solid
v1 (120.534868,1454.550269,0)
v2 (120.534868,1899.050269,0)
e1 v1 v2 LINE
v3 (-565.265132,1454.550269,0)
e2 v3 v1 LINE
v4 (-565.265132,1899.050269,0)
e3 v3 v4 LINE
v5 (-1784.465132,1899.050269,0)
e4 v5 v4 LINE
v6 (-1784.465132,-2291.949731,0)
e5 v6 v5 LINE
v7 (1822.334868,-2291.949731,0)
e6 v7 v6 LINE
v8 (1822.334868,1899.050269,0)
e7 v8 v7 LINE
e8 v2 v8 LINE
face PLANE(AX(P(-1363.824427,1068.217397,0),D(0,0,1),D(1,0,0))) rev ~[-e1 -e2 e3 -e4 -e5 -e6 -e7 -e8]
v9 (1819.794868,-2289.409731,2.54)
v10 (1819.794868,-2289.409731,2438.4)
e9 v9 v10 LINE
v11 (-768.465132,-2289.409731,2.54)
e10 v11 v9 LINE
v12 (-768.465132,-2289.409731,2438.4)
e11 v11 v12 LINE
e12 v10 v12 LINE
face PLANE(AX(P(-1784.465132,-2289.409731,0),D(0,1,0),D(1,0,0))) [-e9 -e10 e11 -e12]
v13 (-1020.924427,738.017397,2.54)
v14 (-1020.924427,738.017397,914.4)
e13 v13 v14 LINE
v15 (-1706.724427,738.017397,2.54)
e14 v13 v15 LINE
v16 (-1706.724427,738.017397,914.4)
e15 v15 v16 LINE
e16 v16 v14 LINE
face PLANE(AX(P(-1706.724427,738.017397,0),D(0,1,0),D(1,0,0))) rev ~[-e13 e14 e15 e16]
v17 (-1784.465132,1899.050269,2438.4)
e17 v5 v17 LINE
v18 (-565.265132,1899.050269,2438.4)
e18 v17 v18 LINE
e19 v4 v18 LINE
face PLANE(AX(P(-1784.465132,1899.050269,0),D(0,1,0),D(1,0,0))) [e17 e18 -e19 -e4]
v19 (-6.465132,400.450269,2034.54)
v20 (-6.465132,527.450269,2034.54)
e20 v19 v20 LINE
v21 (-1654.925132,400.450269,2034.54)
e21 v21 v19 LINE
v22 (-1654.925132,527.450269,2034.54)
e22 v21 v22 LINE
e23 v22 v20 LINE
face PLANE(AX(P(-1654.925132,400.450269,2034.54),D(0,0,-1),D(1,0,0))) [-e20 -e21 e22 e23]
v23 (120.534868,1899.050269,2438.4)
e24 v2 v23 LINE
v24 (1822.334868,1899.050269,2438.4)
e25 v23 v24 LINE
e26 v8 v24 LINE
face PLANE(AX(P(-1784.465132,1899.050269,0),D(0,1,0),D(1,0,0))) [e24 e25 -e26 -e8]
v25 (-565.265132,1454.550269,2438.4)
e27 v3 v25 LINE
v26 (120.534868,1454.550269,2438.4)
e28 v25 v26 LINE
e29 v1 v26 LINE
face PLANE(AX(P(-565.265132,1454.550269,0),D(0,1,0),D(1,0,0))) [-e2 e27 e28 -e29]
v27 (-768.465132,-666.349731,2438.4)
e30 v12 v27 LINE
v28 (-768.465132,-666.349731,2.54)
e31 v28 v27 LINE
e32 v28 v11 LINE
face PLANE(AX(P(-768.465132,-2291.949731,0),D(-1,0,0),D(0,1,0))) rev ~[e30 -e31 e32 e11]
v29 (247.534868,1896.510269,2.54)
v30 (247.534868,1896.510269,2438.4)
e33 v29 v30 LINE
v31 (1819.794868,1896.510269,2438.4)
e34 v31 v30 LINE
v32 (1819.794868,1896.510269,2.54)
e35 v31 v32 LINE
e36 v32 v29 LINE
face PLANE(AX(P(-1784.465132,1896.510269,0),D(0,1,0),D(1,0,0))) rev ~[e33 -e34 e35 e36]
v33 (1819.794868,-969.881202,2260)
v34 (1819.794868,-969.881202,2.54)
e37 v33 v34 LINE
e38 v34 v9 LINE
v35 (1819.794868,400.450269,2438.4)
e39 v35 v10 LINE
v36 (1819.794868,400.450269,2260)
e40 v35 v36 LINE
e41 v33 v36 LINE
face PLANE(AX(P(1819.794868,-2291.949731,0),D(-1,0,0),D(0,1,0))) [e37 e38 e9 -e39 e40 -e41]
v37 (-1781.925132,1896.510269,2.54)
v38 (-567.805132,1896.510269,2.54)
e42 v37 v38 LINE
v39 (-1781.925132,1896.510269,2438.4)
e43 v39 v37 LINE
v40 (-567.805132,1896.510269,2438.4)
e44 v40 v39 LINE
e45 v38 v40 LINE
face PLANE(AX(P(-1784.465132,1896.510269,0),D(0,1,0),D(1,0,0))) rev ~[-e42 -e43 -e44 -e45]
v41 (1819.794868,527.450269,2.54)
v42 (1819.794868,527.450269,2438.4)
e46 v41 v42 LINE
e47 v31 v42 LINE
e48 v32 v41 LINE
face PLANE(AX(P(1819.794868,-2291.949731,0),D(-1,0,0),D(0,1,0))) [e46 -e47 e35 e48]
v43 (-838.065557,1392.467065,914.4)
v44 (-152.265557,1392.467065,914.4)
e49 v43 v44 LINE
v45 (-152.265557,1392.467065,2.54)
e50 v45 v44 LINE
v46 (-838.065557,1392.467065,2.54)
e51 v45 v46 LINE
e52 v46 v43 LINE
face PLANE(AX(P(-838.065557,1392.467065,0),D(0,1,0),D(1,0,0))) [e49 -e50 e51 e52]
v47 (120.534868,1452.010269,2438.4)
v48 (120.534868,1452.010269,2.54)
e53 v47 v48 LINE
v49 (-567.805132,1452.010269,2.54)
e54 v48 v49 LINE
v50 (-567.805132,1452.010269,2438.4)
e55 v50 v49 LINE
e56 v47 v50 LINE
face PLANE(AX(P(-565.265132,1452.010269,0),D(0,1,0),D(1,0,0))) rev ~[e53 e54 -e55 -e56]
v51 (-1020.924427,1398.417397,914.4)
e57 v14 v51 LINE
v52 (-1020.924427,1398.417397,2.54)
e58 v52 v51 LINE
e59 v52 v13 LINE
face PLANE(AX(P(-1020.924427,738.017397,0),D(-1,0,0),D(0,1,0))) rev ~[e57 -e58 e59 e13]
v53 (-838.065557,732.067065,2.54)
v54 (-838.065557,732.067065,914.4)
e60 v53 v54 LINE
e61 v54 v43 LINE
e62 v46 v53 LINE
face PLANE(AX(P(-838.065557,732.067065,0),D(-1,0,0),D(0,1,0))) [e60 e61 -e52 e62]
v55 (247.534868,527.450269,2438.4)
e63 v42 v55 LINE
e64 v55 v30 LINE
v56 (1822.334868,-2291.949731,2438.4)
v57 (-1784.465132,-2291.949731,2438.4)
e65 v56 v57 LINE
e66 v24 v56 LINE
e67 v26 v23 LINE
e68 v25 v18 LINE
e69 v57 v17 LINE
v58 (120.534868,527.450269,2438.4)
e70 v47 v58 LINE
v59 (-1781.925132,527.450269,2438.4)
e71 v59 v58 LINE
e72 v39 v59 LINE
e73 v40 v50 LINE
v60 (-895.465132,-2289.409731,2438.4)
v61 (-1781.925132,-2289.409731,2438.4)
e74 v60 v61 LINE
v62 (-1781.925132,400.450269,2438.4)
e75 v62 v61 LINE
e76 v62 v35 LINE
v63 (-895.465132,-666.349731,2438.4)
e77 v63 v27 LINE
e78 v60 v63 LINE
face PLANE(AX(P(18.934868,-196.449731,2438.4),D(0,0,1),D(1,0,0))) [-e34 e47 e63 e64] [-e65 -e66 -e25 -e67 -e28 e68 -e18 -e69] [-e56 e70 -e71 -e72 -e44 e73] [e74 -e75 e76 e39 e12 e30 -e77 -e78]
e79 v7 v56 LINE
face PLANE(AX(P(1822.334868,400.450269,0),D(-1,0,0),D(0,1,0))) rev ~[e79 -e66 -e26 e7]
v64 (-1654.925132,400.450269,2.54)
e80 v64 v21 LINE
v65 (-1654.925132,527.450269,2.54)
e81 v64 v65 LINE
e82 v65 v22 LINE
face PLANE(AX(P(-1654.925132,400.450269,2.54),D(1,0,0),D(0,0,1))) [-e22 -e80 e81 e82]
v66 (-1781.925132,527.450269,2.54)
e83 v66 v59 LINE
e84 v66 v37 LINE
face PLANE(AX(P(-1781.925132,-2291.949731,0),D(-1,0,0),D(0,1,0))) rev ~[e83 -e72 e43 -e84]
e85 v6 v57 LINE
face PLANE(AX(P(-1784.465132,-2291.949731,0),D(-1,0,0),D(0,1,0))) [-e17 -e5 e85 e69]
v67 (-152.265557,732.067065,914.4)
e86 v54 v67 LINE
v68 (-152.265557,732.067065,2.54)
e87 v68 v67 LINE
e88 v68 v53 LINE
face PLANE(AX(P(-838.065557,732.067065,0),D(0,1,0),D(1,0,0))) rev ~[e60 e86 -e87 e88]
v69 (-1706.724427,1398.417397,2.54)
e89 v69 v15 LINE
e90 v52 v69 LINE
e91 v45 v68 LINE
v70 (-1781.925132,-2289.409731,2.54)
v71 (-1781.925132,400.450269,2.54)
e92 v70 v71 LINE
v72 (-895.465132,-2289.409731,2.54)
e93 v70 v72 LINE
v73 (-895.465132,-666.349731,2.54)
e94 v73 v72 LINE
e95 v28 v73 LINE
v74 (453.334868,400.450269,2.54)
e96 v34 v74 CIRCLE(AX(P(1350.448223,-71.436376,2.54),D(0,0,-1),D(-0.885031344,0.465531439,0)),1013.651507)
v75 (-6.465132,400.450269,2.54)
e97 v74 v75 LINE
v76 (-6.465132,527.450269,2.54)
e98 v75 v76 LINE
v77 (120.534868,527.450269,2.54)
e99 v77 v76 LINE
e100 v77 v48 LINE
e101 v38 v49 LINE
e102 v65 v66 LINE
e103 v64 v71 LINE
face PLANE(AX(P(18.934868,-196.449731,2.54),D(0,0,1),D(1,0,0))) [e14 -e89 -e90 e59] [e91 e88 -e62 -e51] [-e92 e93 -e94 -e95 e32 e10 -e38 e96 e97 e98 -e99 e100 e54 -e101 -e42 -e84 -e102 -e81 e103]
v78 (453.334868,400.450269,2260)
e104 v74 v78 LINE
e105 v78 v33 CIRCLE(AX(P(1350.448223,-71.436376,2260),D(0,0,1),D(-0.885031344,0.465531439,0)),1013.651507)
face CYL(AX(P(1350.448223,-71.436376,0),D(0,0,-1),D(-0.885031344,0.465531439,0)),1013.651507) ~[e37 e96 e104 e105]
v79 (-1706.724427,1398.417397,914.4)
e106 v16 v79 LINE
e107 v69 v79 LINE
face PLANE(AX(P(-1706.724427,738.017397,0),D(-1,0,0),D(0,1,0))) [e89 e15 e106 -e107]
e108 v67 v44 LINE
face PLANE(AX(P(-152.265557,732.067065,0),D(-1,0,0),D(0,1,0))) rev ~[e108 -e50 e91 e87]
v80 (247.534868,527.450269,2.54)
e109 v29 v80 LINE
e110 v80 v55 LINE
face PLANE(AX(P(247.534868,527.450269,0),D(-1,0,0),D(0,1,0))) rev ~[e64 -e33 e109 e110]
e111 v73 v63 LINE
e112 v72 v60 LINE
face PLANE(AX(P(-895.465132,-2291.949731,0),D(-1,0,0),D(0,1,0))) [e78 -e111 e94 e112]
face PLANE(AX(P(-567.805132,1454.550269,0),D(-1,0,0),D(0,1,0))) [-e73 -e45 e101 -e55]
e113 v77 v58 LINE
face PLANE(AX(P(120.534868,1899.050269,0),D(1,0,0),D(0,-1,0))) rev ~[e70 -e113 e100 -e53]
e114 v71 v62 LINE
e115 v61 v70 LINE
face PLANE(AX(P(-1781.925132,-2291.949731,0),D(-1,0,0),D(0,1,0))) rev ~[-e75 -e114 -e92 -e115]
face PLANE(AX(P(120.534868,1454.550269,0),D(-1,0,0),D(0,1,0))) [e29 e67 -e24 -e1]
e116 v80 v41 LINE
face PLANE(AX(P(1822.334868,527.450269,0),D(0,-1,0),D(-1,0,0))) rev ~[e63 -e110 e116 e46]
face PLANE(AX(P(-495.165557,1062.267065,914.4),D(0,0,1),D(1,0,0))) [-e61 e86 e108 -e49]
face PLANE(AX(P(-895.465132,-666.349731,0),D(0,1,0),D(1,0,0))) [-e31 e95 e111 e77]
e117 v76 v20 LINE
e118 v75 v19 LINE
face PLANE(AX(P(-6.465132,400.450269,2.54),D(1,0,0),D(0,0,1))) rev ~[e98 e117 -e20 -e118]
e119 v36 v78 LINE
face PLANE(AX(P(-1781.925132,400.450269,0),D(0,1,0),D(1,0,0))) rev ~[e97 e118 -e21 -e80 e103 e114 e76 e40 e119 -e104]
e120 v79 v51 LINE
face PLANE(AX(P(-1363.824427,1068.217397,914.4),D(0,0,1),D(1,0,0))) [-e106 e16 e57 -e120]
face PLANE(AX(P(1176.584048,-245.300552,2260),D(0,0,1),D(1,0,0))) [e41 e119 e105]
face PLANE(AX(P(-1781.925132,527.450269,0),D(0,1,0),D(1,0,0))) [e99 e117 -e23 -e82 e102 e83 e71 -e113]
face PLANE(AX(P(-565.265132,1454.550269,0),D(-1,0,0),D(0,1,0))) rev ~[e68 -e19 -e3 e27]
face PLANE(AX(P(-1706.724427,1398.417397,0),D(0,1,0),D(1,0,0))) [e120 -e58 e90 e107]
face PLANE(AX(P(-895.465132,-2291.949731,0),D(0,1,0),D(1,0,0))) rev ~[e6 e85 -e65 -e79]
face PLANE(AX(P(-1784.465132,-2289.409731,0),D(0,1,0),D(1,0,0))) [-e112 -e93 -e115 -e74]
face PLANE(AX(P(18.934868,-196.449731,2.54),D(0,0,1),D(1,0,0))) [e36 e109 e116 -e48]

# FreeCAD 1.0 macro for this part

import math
import FreeCAD as App
import Part
import Sketcher
from FreeCAD import Vector
Q = App.Units.Quantity


def faces_at(feature, points):
    """Names of the faces that lie closest to the given points."""
    faces = feature.Shape.Faces
    near = lambda p: min(range(len(faces)), key=lambda i: faces[i].distToShape(Part.Vertex(*p))[0])
    return sorted({f"Face{near(p) + 1}" for p in points})


def add_polygon(sketch, points):
    """Adds a closed chain of lines whose ends are joined by coincident constraints."""
    first, n = sketch.GeometryCount, len(points)
    for a, b in zip(points, points[1:] + points[:1]):
        sketch.addGeometry(Part.LineSegment(App.Vector(*a, 0), App.Vector(*b, 0)), False)
    for i in range(n):
        sketch.addConstraint(Sketcher.Constraint("Coincident", first + i, 2, first + (i + 1) % n, 1))

doc = App.newDocument("Part")
body = doc.addObject("PartDesign::Body", "Body")

# Sketch on XY plane
sketch1 = doc.addObject("Sketcher::SketchObject", "Sketch")
body.addObject(sketch1)
sketch1.AttachmentSupport = (doc.XY_Plane, [""])
sketch1.MapMode = "FlatFace"
add_polygon(sketch1, [(-1784, 1899), (-1784, -2292), (1822, -2292), (1822, 1899)])  # lines 0-3
sketch1.addConstraint(Sketcher.Constraint("Vertical", 0))
sketch1.addConstraint(Sketcher.Constraint("Horizontal", 1))
sketch1.addConstraint(Sketcher.Constraint("Vertical", 2))
sketch1.addConstraint(Sketcher.Constraint("Horizontal", 3))
sketch1.addConstraint(Sketcher.Constraint("DistanceX", 1, 1, 1, 2, Q("142 in")))
sketch1.addConstraint(Sketcher.Constraint("DistanceY", 0, 2, 0, 1, Q("165 in")))
sketch1.addConstraint(Sketcher.Constraint("DistanceX", 0, 2, -1, 1, 1784.465132))
sketch1.addConstraint(Sketcher.Constraint("DistanceY", 0, 2, -1, 1, 2291.949731))
pad1 = doc.addObject("PartDesign::Pad", "Pad")
body.addObject(pad1)
pad1.Profile = sketch1
pad1.Length = Q("96 in")

# Sketch on XY plane
sketch2 = doc.addObject("Sketcher::SketchObject", "Sketch001")
body.addObject(sketch2)
sketch2.AttachmentSupport = (doc.XY_Plane, [""])
sketch2.MapMode = "FlatFace"
add_polygon(sketch2, [(-565, 1899), (-565, 1455), (121, 1455), (121, 1899)])  # lines 0-3
sketch2.addConstraint(Sketcher.Constraint("Vertical", 0))
sketch2.addConstraint(Sketcher.Constraint("Horizontal", 1))
sketch2.addConstraint(Sketcher.Constraint("Vertical", 2))
sketch2.addConstraint(Sketcher.Constraint("Horizontal", 3))
sketch2.addConstraint(Sketcher.Constraint("DistanceX", 1, 1, 1, 2, Q("27 in")))
sketch2.addConstraint(Sketcher.Constraint("DistanceY", 0, 2, 0, 1, Q("17.5 in")))
sketch2.addConstraint(Sketcher.Constraint("DistanceX", 0, 2, -1, 1, 565.265132))
sketch2.addConstraint(Sketcher.Constraint("DistanceY", -1, 1, 0, 2, 1454.550269))
pocket1 = doc.addObject("PartDesign::Pocket", "Pocket")
body.addObject(pocket1)
pocket1.Profile = sketch2
pocket1.Length = Q("96 in")
pocket1.Reversed = True
doc.recompute()

thickness = doc.addObject("PartDesign::Thickness", "Thickness")
body.addObject(thickness)
thickness.Base = (pocket1, faces_at(pocket1, [(18.935, -196.45, 2438.4)]))
thickness.Value = Q("0.1 in")
thickness.Reversed = True
thickness.Join = "Intersection"

# Sketch on XY plane
sketch3 = doc.addObject("Sketcher::SketchObject", "Sketch002")
body.addObject(sketch3)
sketch3.AttachmentSupport = (doc.XY_Plane, [""])
sketch3.MapMode = "FlatFace"
sketch3.addGeometry(Part.LineSegment(Vector(1822, -969, 0), Vector(1822, 400, 0)), False)
sketch3.addGeometry(Part.LineSegment(Vector(1822, 400, 0), Vector(453, 400, 0)), False)
sketch3.addGeometry(Part.ArcOfCircle(Part.Circle(Vector(1350, -71, 0), Vector(0, 0, 1), 1014), math.radians(152), math.radians(298)), False)
sketch3.addConstraint(Sketcher.Constraint("Coincident", 0, 2, 1, 1))
sketch3.addConstraint(Sketcher.Constraint("Coincident", 1, 2, 2, 1))
sketch3.addConstraint(Sketcher.Constraint("Coincident", 2, 2, 0, 1))
sketch3.addConstraint(Sketcher.Constraint("Vertical", 0))
sketch3.addConstraint(Sketcher.Constraint("Horizontal", 1))
sketch3.addConstraint(Sketcher.Constraint("Equal", 1, 0))
sketch3.addConstraint(Sketcher.Constraint("DistanceX", 1, 2, 1, 1, 1369.0))
sketch3.addConstraint(Sketcher.Constraint("Radius", 2, 1013.651507))
sketch3.addConstraint(Sketcher.Constraint("DistanceX", -1, 1, 0, 2, 1822.334868))
sketch3.addConstraint(Sketcher.Constraint("DistanceY", -1, 1, 0, 2, 400.450269))
pad2 = doc.addObject("PartDesign::Pad", "Pad001")
body.addObject(pad2)
pad2.Profile = sketch3
pad2.Length = 2260

# Sketch on XY plane
sketch4 = doc.addObject("Sketcher::SketchObject", "Sketch003")
body.addObject(sketch4)
sketch4.AttachmentSupport = (doc.XY_Plane, [""])
sketch4.MapMode = "FlatFace"
add_polygon(sketch4, [(-895, -666), (-895, -2292), (-768, -2292), (-768, -666)])  # lines 0-3
sketch4.addConstraint(Sketcher.Constraint("Vertical", 0))
sketch4.addConstraint(Sketcher.Constraint("Horizontal", 1))
sketch4.addConstraint(Sketcher.Constraint("Vertical", 2))
sketch4.addConstraint(Sketcher.Constraint("Horizontal", 3))
sketch4.addConstraint(Sketcher.Constraint("DistanceX", 1, 1, 1, 2, Q("5 in")))
sketch4.addConstraint(Sketcher.Constraint("DistanceY", 0, 2, 0, 1, Q("64 in")))
sketch4.addConstraint(Sketcher.Constraint("DistanceX", 0, 2, -1, 1, 895.465132))
sketch4.addConstraint(Sketcher.Constraint("DistanceY", 0, 2, -1, 1, 2291.949731))
pad3 = doc.addObject("PartDesign::Pad", "Pad002")
body.addObject(pad3)
pad3.Profile = sketch4
pad3.Length = Q("96 in")

# Sketch on XY plane
sketch5 = doc.addObject("Sketcher::SketchObject", "Sketch004")
body.addObject(sketch5)
sketch5.AttachmentSupport = (doc.XY_Plane, [""])
sketch5.MapMode = "FlatFace"
add_polygon(sketch5, [(-1707, 1398), (-1707, 738), (-1021, 738), (-1021, 1398)])  # lines 0-3
add_polygon(sketch5, [(-838, 1392), (-838, 732), (-152, 732), (-152, 1392)])  # lines 4-7
sketch5.addConstraint(Sketcher.Constraint("Vertical", 0))
sketch5.addConstraint(Sketcher.Constraint("Horizontal", 1))
sketch5.addConstraint(Sketcher.Constraint("Vertical", 2))
sketch5.addConstraint(Sketcher.Constraint("Horizontal", 3))
sketch5.addConstraint(Sketcher.Constraint("Vertical", 4))
sketch5.addConstraint(Sketcher.Constraint("Horizontal", 5))
sketch5.addConstraint(Sketcher.Constraint("Vertical", 6))
sketch5.addConstraint(Sketcher.Constraint("Horizontal", 7))
sketch5.addConstraint(Sketcher.Constraint("Equal", 3, 5))
sketch5.addConstraint(Sketcher.Constraint("Equal", 2, 4))
sketch5.addConstraint(Sketcher.Constraint("DistanceX", 1, 1, 1, 2, Q("27 in")))
sketch5.addConstraint(Sketcher.Constraint("DistanceY", 0, 2, 0, 1, Q("26 in")))
sketch5.addConstraint(Sketcher.Constraint("DistanceX", 1, 2, 4, 2, 182.85887))
sketch5.addConstraint(Sketcher.Constraint("DistanceX", 0, 2, -1, 1, 1706.724427))
sketch5.addConstraint(Sketcher.Constraint("DistanceY", -1, 1, 0, 2, 738.017397))
sketch5.addConstraint(Sketcher.Constraint("DistanceY", -1, 1, 4, 2, 732.067065))
pad4 = doc.addObject("PartDesign::Pad", "Pad003")
body.addObject(pad4)
pad4.Profile = sketch5
pad4.Length = Q("36 in")

# Sketch on XY plane
sketch6 = doc.addObject("Sketcher::SketchObject", "Sketch005")
body.addObject(sketch6)
sketch6.AttachmentSupport = (doc.XY_Plane, [""])
sketch6.MapMode = "FlatFace"
add_polygon(sketch6, [(121, 1899), (121, 527), (-1782, 527), (-1782, 400), (1822, 400), (1822, 527), (248, 527), (248, 1899)])  # lines 0-7
sketch6.addConstraint(Sketcher.Constraint("Vertical", 0))
sketch6.addConstraint(Sketcher.Constraint("Horizontal", 1))
sketch6.addConstraint(Sketcher.Constraint("Vertical", 2))
sketch6.addConstraint(Sketcher.Constraint("Horizontal", 3))
sketch6.addConstraint(Sketcher.Constraint("Vertical", 4))
sketch6.addConstraint(Sketcher.Constraint("Horizontal", 5))
sketch6.addConstraint(Sketcher.Constraint("Vertical", 6))
sketch6.addConstraint(Sketcher.Constraint("Horizontal", 7))
sketch6.addConstraint(Sketcher.Constraint("Horizontal", 1, 2, 4, 2))
sketch6.addConstraint(Sketcher.Constraint("Equal", 7, 2))
sketch6.addConstraint(Sketcher.Constraint("DistanceX", 5, 2, 5, 1, Q("62 in")))
sketch6.addConstraint(Sketcher.Constraint("DistanceX", 7, 2, 7, 1, Q("5 in")))
sketch6.addConstraint(Sketcher.Constraint("DistanceY", 0, 2, 0, 1, Q("54 in")))
sketch6.addConstraint(Sketcher.Constraint("DistanceX", 1, 2, 1, 1, Q("74.9 in")))
sketch6.addConstraint(Sketcher.Constraint("DistanceX", -1, 1, 0, 2, 120.534868))
sketch6.addConstraint(Sketcher.Constraint("DistanceY", -1, 1, 0, 2, 527.450269))
pad5 = doc.addObject("PartDesign::Pad", "Pad004")
body.addObject(pad5)
pad5.Profile = sketch6
pad5.Length = Q("96 in")

# Sketch on XZ plane
sketch7 = doc.addObject("Sketcher::SketchObject", "Sketch006")
body.addObject(sketch7)
sketch7.AttachmentSupport = (doc.XZ_Plane, [""])
sketch7.MapMode = "FlatFace"
sketch7.AttachmentOffset = App.Placement(Vector(0, 0, -400.450269), App.Rotation())
add_polygon(sketch7, [(-1655, 2035), (-1655, 3), (-6, 3), (-6, 2035)])  # lines 0-3
sketch7.addConstraint(Sketcher.Constraint("Vertical", 0))
sketch7.addConstraint(Sketcher.Constraint("Horizontal", 1))
sketch7.addConstraint(Sketcher.Constraint("Vertical", 2))
sketch7.addConstraint(Sketcher.Constraint("Horizontal", 3))
sketch7.addConstraint(Sketcher.Constraint("DistanceY", 0, 2, 0, 1, Q("80 in")))
sketch7.addConstraint(Sketcher.Constraint("DistanceX", 1, 1, 1, 2, Q("64.9 in")))
sketch7.addConstraint(Sketcher.Constraint("DistanceY", -1, 1, 0, 2, Q("0.1 in")))
sketch7.addConstraint(Sketcher.Constraint("DistanceX", 0, 2, -1, 1, 1654.925132))
pocket2 = doc.addObject("PartDesign::Pocket", "Pocket001")
body.addObject(pocket2)
pocket2.Profile = sketch7
pocket2.Length = Q("5 in")

doc.recompute()
